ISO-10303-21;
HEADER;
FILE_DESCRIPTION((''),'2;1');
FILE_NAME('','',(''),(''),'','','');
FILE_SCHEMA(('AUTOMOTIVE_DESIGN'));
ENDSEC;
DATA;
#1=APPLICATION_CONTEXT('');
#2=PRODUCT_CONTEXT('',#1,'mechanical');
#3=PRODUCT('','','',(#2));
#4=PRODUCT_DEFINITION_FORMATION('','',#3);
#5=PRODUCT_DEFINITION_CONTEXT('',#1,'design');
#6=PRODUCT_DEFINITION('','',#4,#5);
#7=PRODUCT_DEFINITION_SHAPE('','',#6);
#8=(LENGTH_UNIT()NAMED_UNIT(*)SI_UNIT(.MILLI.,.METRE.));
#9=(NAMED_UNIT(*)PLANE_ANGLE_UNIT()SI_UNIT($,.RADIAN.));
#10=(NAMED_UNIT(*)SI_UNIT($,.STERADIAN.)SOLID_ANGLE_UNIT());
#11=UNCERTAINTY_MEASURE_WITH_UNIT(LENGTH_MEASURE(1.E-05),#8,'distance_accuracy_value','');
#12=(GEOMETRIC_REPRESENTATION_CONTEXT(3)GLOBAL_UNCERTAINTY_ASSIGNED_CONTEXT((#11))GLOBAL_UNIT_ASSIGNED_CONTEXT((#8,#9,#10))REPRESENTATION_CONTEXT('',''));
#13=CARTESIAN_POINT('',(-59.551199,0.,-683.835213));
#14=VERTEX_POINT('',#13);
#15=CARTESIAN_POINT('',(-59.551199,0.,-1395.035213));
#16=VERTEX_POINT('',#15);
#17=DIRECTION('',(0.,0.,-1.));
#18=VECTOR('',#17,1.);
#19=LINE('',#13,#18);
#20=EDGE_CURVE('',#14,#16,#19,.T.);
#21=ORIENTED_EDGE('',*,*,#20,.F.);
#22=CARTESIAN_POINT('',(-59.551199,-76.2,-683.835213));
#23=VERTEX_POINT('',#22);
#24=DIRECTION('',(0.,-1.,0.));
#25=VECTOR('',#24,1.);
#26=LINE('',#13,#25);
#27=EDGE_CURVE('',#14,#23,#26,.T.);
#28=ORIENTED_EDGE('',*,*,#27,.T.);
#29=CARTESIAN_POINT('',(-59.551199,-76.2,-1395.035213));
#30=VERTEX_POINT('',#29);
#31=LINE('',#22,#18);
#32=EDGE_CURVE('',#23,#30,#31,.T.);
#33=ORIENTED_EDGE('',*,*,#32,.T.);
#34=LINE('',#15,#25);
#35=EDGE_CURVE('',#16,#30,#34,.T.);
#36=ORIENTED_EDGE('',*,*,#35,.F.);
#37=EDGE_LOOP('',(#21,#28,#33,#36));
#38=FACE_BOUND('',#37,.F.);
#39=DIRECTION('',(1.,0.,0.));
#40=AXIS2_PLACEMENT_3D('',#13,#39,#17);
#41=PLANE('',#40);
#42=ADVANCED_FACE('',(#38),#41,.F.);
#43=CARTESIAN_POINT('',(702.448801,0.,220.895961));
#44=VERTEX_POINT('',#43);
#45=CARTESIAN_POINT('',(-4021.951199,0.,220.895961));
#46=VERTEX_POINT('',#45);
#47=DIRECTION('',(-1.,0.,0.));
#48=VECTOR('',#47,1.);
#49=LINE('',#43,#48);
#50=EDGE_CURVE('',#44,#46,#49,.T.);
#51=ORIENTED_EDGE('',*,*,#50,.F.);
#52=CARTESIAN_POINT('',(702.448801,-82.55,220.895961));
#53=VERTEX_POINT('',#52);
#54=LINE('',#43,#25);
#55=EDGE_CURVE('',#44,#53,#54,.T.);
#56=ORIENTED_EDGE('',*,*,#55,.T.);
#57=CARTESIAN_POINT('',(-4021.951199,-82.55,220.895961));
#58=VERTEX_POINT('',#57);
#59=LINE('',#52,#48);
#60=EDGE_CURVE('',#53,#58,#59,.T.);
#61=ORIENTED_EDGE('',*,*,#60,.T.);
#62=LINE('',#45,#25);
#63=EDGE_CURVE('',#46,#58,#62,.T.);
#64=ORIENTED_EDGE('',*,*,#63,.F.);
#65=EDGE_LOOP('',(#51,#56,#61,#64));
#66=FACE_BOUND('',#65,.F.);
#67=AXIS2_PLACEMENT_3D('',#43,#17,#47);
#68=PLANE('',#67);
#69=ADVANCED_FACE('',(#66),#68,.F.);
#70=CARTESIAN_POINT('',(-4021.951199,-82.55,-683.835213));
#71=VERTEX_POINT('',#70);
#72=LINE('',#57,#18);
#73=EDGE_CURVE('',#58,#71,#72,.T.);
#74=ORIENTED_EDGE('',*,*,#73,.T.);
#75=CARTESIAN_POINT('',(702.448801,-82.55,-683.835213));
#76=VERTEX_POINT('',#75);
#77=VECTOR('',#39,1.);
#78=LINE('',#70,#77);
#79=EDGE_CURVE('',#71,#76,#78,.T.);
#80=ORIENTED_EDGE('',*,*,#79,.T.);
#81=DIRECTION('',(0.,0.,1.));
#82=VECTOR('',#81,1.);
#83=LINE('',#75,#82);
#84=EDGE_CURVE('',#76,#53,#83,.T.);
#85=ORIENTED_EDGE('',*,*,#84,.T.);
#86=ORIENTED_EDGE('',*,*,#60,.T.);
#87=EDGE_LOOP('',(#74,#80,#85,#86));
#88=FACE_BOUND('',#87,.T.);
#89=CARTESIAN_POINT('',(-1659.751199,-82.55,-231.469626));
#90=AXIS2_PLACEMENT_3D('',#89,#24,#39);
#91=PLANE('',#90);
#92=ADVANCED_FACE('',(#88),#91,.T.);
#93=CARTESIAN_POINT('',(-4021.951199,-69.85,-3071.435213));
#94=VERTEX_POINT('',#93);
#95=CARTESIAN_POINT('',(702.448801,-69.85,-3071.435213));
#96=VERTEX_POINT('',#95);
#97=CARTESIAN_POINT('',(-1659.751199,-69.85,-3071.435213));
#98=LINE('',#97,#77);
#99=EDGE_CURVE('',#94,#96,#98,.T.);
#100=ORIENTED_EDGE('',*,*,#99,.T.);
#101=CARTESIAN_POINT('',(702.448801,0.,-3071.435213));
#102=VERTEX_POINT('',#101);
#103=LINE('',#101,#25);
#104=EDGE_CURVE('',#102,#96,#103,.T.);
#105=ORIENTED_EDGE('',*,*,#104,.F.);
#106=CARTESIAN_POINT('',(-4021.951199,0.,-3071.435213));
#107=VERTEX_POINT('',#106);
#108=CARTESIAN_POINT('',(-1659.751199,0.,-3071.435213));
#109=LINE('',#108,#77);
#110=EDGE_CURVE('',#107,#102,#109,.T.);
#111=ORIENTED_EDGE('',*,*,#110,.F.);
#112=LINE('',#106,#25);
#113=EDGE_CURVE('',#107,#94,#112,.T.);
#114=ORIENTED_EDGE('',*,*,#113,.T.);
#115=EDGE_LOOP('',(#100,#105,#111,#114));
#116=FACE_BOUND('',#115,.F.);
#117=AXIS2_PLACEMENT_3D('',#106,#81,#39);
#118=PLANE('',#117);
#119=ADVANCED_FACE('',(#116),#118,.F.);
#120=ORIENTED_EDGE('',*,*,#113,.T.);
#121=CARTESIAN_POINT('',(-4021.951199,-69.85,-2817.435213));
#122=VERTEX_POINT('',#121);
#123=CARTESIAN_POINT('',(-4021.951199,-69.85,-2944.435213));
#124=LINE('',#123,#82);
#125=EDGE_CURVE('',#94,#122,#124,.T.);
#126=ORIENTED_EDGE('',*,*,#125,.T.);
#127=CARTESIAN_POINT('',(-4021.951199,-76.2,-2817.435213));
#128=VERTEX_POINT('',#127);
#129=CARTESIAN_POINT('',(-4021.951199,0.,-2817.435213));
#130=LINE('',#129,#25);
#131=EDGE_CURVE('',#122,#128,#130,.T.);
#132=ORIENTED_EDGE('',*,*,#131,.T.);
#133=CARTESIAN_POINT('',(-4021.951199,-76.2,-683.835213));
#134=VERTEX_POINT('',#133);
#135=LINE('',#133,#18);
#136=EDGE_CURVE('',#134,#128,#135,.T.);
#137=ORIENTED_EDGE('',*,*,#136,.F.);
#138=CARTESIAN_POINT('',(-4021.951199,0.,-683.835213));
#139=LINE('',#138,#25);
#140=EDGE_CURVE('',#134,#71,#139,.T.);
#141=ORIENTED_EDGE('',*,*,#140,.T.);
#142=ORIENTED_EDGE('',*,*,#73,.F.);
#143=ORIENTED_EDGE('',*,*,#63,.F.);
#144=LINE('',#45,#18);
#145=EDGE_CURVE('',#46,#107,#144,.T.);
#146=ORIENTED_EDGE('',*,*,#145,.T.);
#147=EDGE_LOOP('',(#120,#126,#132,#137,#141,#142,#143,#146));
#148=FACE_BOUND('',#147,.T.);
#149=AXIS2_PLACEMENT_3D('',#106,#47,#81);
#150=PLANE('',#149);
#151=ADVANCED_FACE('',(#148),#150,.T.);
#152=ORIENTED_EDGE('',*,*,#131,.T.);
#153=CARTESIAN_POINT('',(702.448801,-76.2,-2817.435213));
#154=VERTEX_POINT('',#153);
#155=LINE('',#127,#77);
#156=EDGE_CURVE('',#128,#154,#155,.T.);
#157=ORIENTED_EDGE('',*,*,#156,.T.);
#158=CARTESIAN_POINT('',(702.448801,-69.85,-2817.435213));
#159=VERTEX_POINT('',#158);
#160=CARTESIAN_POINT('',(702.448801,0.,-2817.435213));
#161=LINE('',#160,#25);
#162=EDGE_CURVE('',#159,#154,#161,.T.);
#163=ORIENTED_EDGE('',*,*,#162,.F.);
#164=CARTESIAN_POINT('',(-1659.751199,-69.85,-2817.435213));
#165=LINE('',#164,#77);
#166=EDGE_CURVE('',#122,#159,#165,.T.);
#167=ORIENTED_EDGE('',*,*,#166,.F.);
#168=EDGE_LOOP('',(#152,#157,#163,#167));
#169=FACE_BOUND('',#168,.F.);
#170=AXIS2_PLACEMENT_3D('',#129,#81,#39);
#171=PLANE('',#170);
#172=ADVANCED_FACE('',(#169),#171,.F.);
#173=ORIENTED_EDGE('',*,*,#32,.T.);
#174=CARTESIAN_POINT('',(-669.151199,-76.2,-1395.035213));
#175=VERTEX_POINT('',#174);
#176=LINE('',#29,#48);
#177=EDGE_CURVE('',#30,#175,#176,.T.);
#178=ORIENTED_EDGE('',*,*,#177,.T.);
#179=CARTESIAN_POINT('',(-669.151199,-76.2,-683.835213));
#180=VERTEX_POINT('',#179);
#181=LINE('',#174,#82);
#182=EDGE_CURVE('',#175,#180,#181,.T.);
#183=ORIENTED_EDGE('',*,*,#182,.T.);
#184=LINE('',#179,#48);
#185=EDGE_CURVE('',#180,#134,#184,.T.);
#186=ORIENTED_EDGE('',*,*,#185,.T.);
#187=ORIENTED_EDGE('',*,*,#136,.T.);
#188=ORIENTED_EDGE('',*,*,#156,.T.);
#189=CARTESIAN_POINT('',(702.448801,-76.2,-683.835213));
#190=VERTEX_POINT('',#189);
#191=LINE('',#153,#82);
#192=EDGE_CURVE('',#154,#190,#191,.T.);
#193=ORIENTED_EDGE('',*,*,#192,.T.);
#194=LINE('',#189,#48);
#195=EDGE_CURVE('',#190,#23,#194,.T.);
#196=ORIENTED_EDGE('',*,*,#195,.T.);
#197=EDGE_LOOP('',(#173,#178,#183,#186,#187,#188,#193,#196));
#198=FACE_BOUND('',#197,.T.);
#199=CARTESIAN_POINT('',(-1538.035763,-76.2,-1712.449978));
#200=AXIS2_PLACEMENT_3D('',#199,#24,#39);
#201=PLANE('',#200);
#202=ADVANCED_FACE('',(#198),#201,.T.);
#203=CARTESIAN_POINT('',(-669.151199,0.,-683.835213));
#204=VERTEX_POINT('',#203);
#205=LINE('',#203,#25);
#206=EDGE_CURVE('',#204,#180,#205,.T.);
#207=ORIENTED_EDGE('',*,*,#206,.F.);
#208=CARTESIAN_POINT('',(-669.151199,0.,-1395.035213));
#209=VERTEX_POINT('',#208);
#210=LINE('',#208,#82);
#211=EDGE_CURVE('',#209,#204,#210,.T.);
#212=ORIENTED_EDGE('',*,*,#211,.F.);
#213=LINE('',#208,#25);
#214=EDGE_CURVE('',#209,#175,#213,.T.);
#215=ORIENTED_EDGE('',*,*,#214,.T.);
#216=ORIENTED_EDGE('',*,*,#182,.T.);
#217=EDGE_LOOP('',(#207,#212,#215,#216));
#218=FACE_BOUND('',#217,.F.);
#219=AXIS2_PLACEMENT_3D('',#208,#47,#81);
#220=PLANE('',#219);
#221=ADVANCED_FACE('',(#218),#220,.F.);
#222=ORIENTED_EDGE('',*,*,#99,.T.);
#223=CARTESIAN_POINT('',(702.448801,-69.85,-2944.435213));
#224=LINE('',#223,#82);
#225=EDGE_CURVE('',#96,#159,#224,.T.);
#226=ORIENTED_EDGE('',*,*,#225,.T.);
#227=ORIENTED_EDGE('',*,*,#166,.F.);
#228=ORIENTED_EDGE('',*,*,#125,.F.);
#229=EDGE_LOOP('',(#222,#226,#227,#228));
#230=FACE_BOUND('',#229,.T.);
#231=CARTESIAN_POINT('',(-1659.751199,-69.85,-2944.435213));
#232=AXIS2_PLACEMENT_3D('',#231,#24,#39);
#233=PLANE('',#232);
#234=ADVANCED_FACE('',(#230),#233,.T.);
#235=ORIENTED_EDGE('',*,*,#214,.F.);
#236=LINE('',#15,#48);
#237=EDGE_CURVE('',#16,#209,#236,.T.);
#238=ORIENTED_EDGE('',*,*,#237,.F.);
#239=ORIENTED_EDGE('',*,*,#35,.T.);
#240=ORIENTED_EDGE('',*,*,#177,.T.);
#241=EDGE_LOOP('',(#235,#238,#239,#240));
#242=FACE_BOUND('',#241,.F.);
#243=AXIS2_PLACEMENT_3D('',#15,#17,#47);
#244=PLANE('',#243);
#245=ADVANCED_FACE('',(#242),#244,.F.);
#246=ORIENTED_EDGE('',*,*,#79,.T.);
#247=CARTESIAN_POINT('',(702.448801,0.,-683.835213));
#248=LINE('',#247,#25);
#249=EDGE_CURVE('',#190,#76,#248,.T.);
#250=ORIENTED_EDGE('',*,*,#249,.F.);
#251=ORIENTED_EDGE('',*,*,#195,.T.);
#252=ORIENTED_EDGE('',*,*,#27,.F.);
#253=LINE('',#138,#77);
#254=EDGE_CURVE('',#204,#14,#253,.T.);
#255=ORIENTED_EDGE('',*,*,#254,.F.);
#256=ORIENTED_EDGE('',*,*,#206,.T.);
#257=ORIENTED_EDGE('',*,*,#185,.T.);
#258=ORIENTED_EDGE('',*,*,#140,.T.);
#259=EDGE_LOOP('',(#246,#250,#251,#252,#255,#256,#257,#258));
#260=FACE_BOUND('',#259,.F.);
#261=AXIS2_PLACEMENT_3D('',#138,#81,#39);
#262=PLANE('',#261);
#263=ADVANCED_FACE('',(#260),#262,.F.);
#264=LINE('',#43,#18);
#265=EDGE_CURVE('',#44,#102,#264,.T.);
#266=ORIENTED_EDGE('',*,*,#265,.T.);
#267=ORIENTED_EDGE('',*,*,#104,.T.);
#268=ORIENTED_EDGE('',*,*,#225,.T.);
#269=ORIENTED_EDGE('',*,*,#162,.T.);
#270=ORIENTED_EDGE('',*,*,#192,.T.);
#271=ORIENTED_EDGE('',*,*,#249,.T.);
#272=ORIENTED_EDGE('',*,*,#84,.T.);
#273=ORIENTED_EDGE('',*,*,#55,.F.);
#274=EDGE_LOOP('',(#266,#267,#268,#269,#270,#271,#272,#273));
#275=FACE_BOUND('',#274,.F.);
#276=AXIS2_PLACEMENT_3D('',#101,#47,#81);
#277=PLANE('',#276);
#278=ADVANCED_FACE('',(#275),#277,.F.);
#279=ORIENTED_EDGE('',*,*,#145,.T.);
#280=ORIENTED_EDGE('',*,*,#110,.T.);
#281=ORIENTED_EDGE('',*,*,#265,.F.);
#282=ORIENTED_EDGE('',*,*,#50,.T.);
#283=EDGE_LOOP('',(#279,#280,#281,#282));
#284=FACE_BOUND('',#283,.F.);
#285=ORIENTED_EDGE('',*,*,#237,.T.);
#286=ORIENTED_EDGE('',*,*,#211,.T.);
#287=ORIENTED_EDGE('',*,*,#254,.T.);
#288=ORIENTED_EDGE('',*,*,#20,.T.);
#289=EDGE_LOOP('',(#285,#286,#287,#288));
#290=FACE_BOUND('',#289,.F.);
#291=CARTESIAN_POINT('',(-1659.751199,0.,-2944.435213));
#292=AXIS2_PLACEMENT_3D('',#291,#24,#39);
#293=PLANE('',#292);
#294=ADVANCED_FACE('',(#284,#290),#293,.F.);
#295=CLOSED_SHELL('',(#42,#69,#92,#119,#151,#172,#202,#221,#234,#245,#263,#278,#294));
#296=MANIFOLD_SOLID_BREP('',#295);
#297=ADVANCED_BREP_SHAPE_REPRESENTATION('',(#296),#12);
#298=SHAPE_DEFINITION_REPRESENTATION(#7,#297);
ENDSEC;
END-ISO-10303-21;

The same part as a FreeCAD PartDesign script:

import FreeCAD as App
import Part
import Sketcher
Q = App.Units.Quantity


def add_polygon(sketch, points):
    """Adds a closed chain of lines whose ends are joined by coincident constraints."""
    first, n = sketch.GeometryCount, len(points)
    for a, b in zip(points, points[1:] + points[:1]):
        sketch.addGeometry(Part.LineSegment(App.Vector(*a, 0), App.Vector(*b, 0)), False)
    for i in range(n):
        sketch.addConstraint(Sketcher.Constraint("Coincident", first + i, 2, first + (i + 1) % n, 1))

doc = App.newDocument("Part")
body = doc.addObject("PartDesign::Body", "Body")

sketch1 = body.newObject("Sketcher::SketchObject", "Sketch")
sketch1.AttachmentSupport = (doc.getObject("XZ_Plane"), [""])
sketch1.MapMode = "FlatFace"
add_polygon(sketch1, [(-4022, -684), (702, -684), (702, 221), (-4022, 221)])
sketch1.addConstraint(Sketcher.Constraint("Horizontal", 0))
sketch1.addConstraint(Sketcher.Constraint("Vertical", 1))
sketch1.addConstraint(Sketcher.Constraint("Horizontal", 2))
sketch1.addConstraint(Sketcher.Constraint("Vertical", 3))
sketch1.addConstraint(Sketcher.Constraint("DistanceX", 0, 1, 0, 2, Q("186 in")))
sketch1.addConstraint(Sketcher.Constraint("DistanceX", -1, 1, 0, 2, 702.448801))
sketch1.addConstraint(Sketcher.Constraint("DistanceY", 1, 1, 1, 2, 904.731174))
sketch1.addConstraint(Sketcher.Constraint("DistanceY", -1, 1, 1, 2, 220.895961))
pad1 = body.newObject("PartDesign::Pad", "Pad")
pad1.Profile = sketch1
pad1.Length = Q("3.25 in")

sketch2 = body.newObject("Sketcher::SketchObject", "Sketch001")
sketch2.AttachmentSupport = (doc.getObject("XZ_Plane"), [""])
sketch2.MapMode = "FlatFace"
add_polygon(sketch2, [(-669, -1395), (-669, -684), (-4022, -684), (-4022, -2817), (702, -2817), (702, -684), (-60, -684), (-60, -1395)])
sketch2.addConstraint(Sketcher.Constraint("Vertical", 0))
sketch2.addConstraint(Sketcher.Constraint("Horizontal", 1))
sketch2.addConstraint(Sketcher.Constraint("Vertical", 2))
sketch2.addConstraint(Sketcher.Constraint("Horizontal", 3))
sketch2.addConstraint(Sketcher.Constraint("Vertical", 4))
sketch2.addConstraint(Sketcher.Constraint("Horizontal", 5))
sketch2.addConstraint(Sketcher.Constraint("Vertical", 6))
sketch2.addConstraint(Sketcher.Constraint("Horizontal", 7))
sketch2.addConstraint(Sketcher.Constraint("Horizontal", 1, 2, 4, 2))
sketch2.addConstraint(Sketcher.Constraint("DistanceX", 1, 2, 1, 1, Q("132 in")))
sketch2.addConstraint(Sketcher.Constraint("DistanceX", 3, 1, 3, 2, Q("186 in")))
sketch2.addConstraint(Sketcher.Constraint("DistanceX", 5, 2, 5, 1, Q("30 in")))
sketch2.addConstraint(Sketcher.Constraint("DistanceY", 0, 1, 0, 2, Q("28 in")))
sketch2.addConstraint(Sketcher.Constraint("DistanceY", 2, 2, 2, 1, Q("84 in")))
sketch2.addConstraint(Sketcher.Constraint("DistanceX", 0, 2, -1, 1, 669.151199))
sketch2.addConstraint(Sketcher.Constraint("DistanceY", 0, 2, -1, 1, 683.835213))
pad2 = body.newObject("PartDesign::Pad", "Pad001")
pad2.Profile = sketch2
pad2.Length = Q("3 in")

sketch3 = body.newObject("Sketcher::SketchObject", "Sketch002")
sketch3.AttachmentSupport = (doc.getObject("XZ_Plane"), [""])
sketch3.MapMode = "FlatFace"
add_polygon(sketch3, [(-4022, -2817), (-4022, -3071), (702, -3071), (702, -2817)])
sketch3.addConstraint(Sketcher.Constraint("Vertical", 0))
sketch3.addConstraint(Sketcher.Constraint("Horizontal", 1))
sketch3.addConstraint(Sketcher.Constraint("Vertical", 2))
sketch3.addConstraint(Sketcher.Constraint("Horizontal", 3))
sketch3.addConstraint(Sketcher.Constraint("DistanceX", 1, 1, 1, 2, Q("186 in")))
sketch3.addConstraint(Sketcher.Constraint("DistanceY", 0, 2, 0, 1, Q("10 in")))
sketch3.addConstraint(Sketcher.Constraint("DistanceX", 0, 2, -1, 1, 4021.951199))
sketch3.addConstraint(Sketcher.Constraint("DistanceY", 0, 2, -1, 1, 3071.435213))
pad3 = body.newObject("PartDesign::Pad", "Pad002")
pad3.Profile = sketch3
pad3.Length = Q("2.75 in")

doc.recompute()
